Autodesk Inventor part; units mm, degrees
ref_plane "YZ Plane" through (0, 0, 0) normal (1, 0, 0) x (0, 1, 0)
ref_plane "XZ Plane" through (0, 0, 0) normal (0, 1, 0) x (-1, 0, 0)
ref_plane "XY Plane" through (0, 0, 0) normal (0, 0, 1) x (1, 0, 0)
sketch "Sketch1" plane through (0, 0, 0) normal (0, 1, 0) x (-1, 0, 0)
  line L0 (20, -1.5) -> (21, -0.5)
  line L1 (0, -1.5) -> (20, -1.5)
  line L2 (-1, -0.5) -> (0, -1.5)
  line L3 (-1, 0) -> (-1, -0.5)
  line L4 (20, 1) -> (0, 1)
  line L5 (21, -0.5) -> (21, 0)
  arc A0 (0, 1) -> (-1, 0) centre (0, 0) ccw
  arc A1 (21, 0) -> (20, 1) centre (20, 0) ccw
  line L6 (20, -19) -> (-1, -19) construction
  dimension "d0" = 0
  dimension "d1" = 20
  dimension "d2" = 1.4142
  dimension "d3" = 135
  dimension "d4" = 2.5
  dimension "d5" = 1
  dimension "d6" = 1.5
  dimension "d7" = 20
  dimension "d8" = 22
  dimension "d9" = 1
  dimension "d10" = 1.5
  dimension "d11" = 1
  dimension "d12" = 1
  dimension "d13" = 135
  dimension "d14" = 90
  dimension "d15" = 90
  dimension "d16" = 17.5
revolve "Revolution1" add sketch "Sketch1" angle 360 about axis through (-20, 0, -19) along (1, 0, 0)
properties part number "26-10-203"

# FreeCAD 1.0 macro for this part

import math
import FreeCAD as App
import Part
import Sketcher

doc = App.newDocument("Part")
body = doc.addObject("PartDesign::Body", "Body")

# Sketch on XZ plane
sketch1 = body.newObject("Sketcher::SketchObject", "Sketch")
sketch1.AttachmentSupport = (doc.getObject("XZ_Plane"), [""])
sketch1.MapMode = "FlatFace"
sketch1.addGeometry(Part.LineSegment(App.Vector(0, -1.5, 0), App.Vector(-20, -1.5, 0)), False)
sketch1.addGeometry(Part.LineSegment(App.Vector(-20, -1.5, 0), App.Vector(-21, -0.5, 0)), False)
sketch1.addGeometry(Part.LineSegment(App.Vector(-21, -0.5, 0), App.Vector(-21, 0, 0)), False)
sketch1.addGeometry(Part.ArcOfCircle(Part.Circle(App.Vector(-20, 0, 0), App.Vector(0, 0, 1), 1), math.radians(90), math.radians(180)), False)
sketch1.addGeometry(Part.LineSegment(App.Vector(-20, 1, 0), App.Vector(0, 1, 0)), False)
sketch1.addGeometry(Part.ArcOfCircle(Part.Circle(App.Vector(0, 0, 0), App.Vector(0, 0, 1), 1), math.radians(0), math.radians(90)), False)
sketch1.addGeometry(Part.LineSegment(App.Vector(1, 0, 0), App.Vector(1, -0.5, 0)), False)
sketch1.addGeometry(Part.LineSegment(App.Vector(1, -0.5, 0), App.Vector(0, -1.5, 0)), False)
sketch1.addGeometry(Part.LineSegment(App.Vector(-21, -19, 0), App.Vector(1, -19, 0)), True)  # axis
sketch1.addConstraint(Sketcher.Constraint("Coincident", 0, 2, 1, 1))
sketch1.addConstraint(Sketcher.Constraint("Coincident", 1, 2, 2, 1))
sketch1.addConstraint(Sketcher.Constraint("Tangent", 2, 2, 3, 2))
sketch1.addConstraint(Sketcher.Constraint("Tangent", 3, 1, 4, 1))
sketch1.addConstraint(Sketcher.Constraint("Tangent", 4, 2, 5, 2))
sketch1.addConstraint(Sketcher.Constraint("Tangent", 5, 1, 6, 1))
sketch1.addConstraint(Sketcher.Constraint("Coincident", 6, 2, 7, 1))
sketch1.addConstraint(Sketcher.Constraint("Coincident", 7, 2, 0, 1))
sketch1.addConstraint(Sketcher.Constraint("Horizontal", 0))
sketch1.addConstraint(Sketcher.Constraint("Vertical", 2))
sketch1.addConstraint(Sketcher.Constraint("Horizontal", 4))
sketch1.addConstraint(Sketcher.Constraint("Vertical", 6))
sketch1.addConstraint(Sketcher.Constraint("Horizontal", 8))
sketch1.addConstraint(Sketcher.Constraint("Coincident", 5, 3, -1, 1))
sketch1.addConstraint(Sketcher.Constraint("Equal", 3, 5))
sketch1.addConstraint(Sketcher.Constraint("PointOnObject", 7, 2, -2))
sketch1.addConstraint(Sketcher.Constraint("Perpendicular", 1, 7))
sketch1.addConstraint(Sketcher.Constraint("Horizontal", 1, 2, 6, 2))
sketch1.addConstraint(Sketcher.Constraint("Vertical", 3, 3, 0, 2))
sketch1.addConstraint(Sketcher.Constraint("Vertical", 2, 2, 8, 1))
sketch1.addConstraint(Sketcher.Constraint("Vertical", 6, 2, 8, 2))
sketch1.addConstraint(Sketcher.Constraint("Radius", 3, 1.0))
sketch1.addConstraint(Sketcher.Constraint("DistanceX", 0, 2, 0, 1, 20.0))
sketch1.addConstraint(Sketcher.Constraint("DistanceY", 8, 1, 3, 1, 20.0))
sketch1.addConstraint(Sketcher.Constraint("DistanceY", 0, 2, -1, 1, 1.5))
revolution = body.newObject("PartDesign::Revolution", "Revolution")
revolution.Profile = sketch1
revolution.ReferenceAxis = (sketch1, ["Axis0"])
revolution.Angle = 360

doc.recompute()
